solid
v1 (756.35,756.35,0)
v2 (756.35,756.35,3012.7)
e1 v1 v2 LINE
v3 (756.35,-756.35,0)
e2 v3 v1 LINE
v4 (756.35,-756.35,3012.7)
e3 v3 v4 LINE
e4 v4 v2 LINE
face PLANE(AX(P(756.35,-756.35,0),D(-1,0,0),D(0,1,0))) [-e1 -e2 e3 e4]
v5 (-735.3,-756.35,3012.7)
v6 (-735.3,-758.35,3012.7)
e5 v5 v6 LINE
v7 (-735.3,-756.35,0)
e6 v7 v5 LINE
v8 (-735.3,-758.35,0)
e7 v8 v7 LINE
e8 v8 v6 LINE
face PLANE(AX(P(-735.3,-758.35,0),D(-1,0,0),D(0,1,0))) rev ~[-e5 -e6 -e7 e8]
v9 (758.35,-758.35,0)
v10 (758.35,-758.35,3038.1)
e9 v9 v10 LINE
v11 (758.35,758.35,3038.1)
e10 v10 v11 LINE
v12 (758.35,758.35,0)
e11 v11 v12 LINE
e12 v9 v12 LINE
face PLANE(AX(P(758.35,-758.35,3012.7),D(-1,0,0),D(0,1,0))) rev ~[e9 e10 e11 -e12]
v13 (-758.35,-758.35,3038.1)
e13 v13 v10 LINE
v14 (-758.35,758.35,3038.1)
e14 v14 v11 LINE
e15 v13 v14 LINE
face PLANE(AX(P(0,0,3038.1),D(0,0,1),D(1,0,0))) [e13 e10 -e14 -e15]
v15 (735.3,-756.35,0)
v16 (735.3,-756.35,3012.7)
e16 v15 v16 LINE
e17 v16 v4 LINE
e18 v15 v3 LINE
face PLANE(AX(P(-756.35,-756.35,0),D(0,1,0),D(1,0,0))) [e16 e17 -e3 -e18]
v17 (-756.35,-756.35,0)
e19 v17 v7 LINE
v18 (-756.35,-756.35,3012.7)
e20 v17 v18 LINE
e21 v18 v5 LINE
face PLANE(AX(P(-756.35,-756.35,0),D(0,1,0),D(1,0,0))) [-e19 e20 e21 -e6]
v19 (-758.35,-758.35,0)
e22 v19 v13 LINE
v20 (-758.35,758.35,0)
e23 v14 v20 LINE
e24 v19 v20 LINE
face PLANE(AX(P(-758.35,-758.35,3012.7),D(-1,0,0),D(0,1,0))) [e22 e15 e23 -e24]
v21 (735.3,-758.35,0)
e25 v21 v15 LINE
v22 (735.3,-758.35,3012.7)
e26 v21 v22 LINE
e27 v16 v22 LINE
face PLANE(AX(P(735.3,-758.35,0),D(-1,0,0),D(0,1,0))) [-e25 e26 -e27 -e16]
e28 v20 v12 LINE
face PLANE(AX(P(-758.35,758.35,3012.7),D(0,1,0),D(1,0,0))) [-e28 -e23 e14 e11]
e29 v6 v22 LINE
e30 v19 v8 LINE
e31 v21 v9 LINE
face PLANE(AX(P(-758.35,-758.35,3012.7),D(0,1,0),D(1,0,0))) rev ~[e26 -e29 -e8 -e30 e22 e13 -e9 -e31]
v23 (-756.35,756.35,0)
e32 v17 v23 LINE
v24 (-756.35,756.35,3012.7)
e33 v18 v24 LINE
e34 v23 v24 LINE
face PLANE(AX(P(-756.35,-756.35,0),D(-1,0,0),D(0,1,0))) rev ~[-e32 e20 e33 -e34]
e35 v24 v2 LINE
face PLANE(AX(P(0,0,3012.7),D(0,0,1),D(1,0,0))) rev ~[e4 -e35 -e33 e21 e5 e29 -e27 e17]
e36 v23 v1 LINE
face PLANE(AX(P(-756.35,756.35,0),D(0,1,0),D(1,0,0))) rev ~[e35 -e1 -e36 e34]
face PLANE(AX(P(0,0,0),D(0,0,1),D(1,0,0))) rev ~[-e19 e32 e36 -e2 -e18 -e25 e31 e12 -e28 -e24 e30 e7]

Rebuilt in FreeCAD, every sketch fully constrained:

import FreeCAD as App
import Part
import Sketcher
Q = App.Units.Quantity

doc = App.newDocument("Part")
body = doc.addObject("PartDesign::Body", "Body")

# Sketch on XY plane
sketch1 = doc.addObject("Sketcher::SketchObject", "Sketch")
body.addObject(sketch1)
sketch1.AttachmentSupport = (doc.XY_Plane, [""])
sketch1.MapMode = "FlatFace"
sketch1.addGeometry([
    Part.LineSegment(App.Vector(-758, 758, 0), App.Vector(-758, -758, 0)),  # 0
    Part.LineSegment(App.Vector(-758, -758, 0), App.Vector(758, -758, 0)),  # 1
    Part.LineSegment(App.Vector(758, -758, 0), App.Vector(758, 758, 0)),  # 2
    Part.LineSegment(App.Vector(758, 758, 0), App.Vector(-758, 758, 0)),  # 3
    Part.LineSegment(App.Vector(756, -756, 0), App.Vector(-756, -756, 0)),  # 4
    Part.LineSegment(App.Vector(-756, -756, 0), App.Vector(-756, 756, 0)),  # 5
    Part.LineSegment(App.Vector(-756, 756, 0), App.Vector(756, 756, 0)),  # 6
    Part.LineSegment(App.Vector(756, 756, 0), App.Vector(756, -756, 0)),  # 7
], False)
sketch1.addConstraint([
    Sketcher.Constraint("Coincident", 0, 2, 1, 1),
    Sketcher.Constraint("Coincident", 1, 2, 2, 1),
    Sketcher.Constraint("Coincident", 2, 2, 3, 1),
    Sketcher.Constraint("Coincident", 3, 2, 0, 1),
    Sketcher.Constraint("Coincident", 4, 2, 5, 1),
    Sketcher.Constraint("Coincident", 5, 2, 6, 1),
    Sketcher.Constraint("Coincident", 6, 2, 7, 1),
    Sketcher.Constraint("Coincident", 7, 2, 4, 1),
    Sketcher.Constraint("Vertical", 0),
    Sketcher.Constraint("Horizontal", 1),
    Sketcher.Constraint("Vertical", 2),
    Sketcher.Constraint("Horizontal", 3),
    Sketcher.Constraint("Horizontal", 4),
    Sketcher.Constraint("Vertical", 5),
    Sketcher.Constraint("Horizontal", 6),
    Sketcher.Constraint("Vertical", 7),
    Sketcher.Constraint("Symmetric", 0, 2, 2, 2, -1, 1),
    Sketcher.Constraint("Symmetric", 4, 2, 6, 2, -1, 1),
    Sketcher.Constraint("Equal", 3, 0),
    Sketcher.Constraint("Equal", 6, 5),
    Sketcher.Constraint("DistanceX", 1, 1, 1, 2, Q("1516.7 mm")),
    Sketcher.Constraint("DistanceX", 4, 2, 4, 1, Q("1512.7 mm")),
])
pad1 = doc.addObject("PartDesign::Pad", "Pad")
body.addObject(pad1)
pad1.Profile = sketch1
pad1.Length = 3012.7
body2 = doc.addObject("PartDesign::Body", "Body001")

# Sketch on XY plane
sketch2 = doc.addObject("Sketcher::SketchObject", "Sketch001")
body2.addObject(sketch2)
sketch2.AttachmentSupport = (doc.getObject("XY_Plane001"), [""])
sketch2.MapMode = "FlatFace"
sketch2.addGeometry([
    Part.LineSegment(App.Vector(-735.3, -756.4, 0), App.Vector(-735.3, -758.4, 0)),
    Part.LineSegment(App.Vector(-735.3, -758.4, 0), App.Vector(735.3, -758.4, 0)),
    Part.LineSegment(App.Vector(735.3, -758.4, 0), App.Vector(735.3, -756.4, 0)),
    Part.LineSegment(App.Vector(735.3, -756.4, 0), App.Vector(-735.3, -756.4, 0)),
], False)
sketch2.addConstraint([
    Sketcher.Constraint("Coincident", 0, 2, 1, 1),
    Sketcher.Constraint("Coincident", 1, 2, 2, 1),
    Sketcher.Constraint("Coincident", 2, 2, 3, 1),
    Sketcher.Constraint("Coincident", 3, 2, 0, 1),
    Sketcher.Constraint("Vertical", 0),
    Sketcher.Constraint("Horizontal", 1),
    Sketcher.Constraint("Vertical", 2),
    Sketcher.Constraint("Horizontal", 3),
    Sketcher.Constraint("DistanceY", 0, 2, 0, 1, Q("2 mm")),
    Sketcher.Constraint("DistanceX", 1, 1, 1, 2, Q("1470.6 mm")),
    Sketcher.Constraint("DistanceX", 0, 2, -1, 1, Q("735.3 mm")),
    Sketcher.Constraint("DistanceY", 0, 2, -1, 1, Q("758.35 mm")),
])
pad2 = doc.addObject("PartDesign::Pad", "Pad001")
body2.addObject(pad2)
pad2.Profile = sketch2
pad2.Length = 3014.7
doc.recompute()

boolean = doc.addObject("PartDesign::Boolean", "Boolean")
body.addObject(boolean)
boolean.Type = "Cut"
boolean.addObjects([body2])

# Sketch on XY plane
sketch3 = doc.addObject("Sketcher::SketchObject", "Sketch002")
body.addObject(sketch3)
sketch3.AttachmentSupport = (doc.XY_Plane, [""])
sketch3.MapMode = "FlatFace"
sketch3.AttachmentOffset = App.Placement(App.Vector(0, 0, 3012.7), App.Rotation())
sketch3.addGeometry([
    Part.LineSegment(App.Vector(-758, 758, 0), App.Vector(-758, -758, 0)),
    Part.LineSegment(App.Vector(-758, -758, 0), App.Vector(758, -758, 0)),
    Part.LineSegment(App.Vector(758, -758, 0), App.Vector(758, 758, 0)),
    Part.LineSegment(App.Vector(758, 758, 0), App.Vector(-758, 758, 0)),
], False)
sketch3.addConstraint([
    Sketcher.Constraint("Coincident", 0, 2, 1, 1),
    Sketcher.Constraint("Coincident", 1, 2, 2, 1),
    Sketcher.Constraint("Coincident", 2, 2, 3, 1),
    Sketcher.Constraint("Coincident", 3, 2, 0, 1),
    Sketcher.Constraint("Vertical", 0),
    Sketcher.Constraint("Horizontal", 1),
    Sketcher.Constraint("Vertical", 2),
    Sketcher.Constraint("Horizontal", 3),
    Sketcher.Constraint("Symmetric", 0, 2, 2, 2, -1, 1),
    Sketcher.Constraint("Equal", 3, 0),
    Sketcher.Constraint("DistanceX", 1, 1, 1, 2, Q("1516.7 mm")),
])
pad3 = doc.addObject("PartDesign::Pad", "Pad002")
body.addObject(pad3)
pad3.Profile = sketch3
pad3.Length = 25.4

doc.recompute()
